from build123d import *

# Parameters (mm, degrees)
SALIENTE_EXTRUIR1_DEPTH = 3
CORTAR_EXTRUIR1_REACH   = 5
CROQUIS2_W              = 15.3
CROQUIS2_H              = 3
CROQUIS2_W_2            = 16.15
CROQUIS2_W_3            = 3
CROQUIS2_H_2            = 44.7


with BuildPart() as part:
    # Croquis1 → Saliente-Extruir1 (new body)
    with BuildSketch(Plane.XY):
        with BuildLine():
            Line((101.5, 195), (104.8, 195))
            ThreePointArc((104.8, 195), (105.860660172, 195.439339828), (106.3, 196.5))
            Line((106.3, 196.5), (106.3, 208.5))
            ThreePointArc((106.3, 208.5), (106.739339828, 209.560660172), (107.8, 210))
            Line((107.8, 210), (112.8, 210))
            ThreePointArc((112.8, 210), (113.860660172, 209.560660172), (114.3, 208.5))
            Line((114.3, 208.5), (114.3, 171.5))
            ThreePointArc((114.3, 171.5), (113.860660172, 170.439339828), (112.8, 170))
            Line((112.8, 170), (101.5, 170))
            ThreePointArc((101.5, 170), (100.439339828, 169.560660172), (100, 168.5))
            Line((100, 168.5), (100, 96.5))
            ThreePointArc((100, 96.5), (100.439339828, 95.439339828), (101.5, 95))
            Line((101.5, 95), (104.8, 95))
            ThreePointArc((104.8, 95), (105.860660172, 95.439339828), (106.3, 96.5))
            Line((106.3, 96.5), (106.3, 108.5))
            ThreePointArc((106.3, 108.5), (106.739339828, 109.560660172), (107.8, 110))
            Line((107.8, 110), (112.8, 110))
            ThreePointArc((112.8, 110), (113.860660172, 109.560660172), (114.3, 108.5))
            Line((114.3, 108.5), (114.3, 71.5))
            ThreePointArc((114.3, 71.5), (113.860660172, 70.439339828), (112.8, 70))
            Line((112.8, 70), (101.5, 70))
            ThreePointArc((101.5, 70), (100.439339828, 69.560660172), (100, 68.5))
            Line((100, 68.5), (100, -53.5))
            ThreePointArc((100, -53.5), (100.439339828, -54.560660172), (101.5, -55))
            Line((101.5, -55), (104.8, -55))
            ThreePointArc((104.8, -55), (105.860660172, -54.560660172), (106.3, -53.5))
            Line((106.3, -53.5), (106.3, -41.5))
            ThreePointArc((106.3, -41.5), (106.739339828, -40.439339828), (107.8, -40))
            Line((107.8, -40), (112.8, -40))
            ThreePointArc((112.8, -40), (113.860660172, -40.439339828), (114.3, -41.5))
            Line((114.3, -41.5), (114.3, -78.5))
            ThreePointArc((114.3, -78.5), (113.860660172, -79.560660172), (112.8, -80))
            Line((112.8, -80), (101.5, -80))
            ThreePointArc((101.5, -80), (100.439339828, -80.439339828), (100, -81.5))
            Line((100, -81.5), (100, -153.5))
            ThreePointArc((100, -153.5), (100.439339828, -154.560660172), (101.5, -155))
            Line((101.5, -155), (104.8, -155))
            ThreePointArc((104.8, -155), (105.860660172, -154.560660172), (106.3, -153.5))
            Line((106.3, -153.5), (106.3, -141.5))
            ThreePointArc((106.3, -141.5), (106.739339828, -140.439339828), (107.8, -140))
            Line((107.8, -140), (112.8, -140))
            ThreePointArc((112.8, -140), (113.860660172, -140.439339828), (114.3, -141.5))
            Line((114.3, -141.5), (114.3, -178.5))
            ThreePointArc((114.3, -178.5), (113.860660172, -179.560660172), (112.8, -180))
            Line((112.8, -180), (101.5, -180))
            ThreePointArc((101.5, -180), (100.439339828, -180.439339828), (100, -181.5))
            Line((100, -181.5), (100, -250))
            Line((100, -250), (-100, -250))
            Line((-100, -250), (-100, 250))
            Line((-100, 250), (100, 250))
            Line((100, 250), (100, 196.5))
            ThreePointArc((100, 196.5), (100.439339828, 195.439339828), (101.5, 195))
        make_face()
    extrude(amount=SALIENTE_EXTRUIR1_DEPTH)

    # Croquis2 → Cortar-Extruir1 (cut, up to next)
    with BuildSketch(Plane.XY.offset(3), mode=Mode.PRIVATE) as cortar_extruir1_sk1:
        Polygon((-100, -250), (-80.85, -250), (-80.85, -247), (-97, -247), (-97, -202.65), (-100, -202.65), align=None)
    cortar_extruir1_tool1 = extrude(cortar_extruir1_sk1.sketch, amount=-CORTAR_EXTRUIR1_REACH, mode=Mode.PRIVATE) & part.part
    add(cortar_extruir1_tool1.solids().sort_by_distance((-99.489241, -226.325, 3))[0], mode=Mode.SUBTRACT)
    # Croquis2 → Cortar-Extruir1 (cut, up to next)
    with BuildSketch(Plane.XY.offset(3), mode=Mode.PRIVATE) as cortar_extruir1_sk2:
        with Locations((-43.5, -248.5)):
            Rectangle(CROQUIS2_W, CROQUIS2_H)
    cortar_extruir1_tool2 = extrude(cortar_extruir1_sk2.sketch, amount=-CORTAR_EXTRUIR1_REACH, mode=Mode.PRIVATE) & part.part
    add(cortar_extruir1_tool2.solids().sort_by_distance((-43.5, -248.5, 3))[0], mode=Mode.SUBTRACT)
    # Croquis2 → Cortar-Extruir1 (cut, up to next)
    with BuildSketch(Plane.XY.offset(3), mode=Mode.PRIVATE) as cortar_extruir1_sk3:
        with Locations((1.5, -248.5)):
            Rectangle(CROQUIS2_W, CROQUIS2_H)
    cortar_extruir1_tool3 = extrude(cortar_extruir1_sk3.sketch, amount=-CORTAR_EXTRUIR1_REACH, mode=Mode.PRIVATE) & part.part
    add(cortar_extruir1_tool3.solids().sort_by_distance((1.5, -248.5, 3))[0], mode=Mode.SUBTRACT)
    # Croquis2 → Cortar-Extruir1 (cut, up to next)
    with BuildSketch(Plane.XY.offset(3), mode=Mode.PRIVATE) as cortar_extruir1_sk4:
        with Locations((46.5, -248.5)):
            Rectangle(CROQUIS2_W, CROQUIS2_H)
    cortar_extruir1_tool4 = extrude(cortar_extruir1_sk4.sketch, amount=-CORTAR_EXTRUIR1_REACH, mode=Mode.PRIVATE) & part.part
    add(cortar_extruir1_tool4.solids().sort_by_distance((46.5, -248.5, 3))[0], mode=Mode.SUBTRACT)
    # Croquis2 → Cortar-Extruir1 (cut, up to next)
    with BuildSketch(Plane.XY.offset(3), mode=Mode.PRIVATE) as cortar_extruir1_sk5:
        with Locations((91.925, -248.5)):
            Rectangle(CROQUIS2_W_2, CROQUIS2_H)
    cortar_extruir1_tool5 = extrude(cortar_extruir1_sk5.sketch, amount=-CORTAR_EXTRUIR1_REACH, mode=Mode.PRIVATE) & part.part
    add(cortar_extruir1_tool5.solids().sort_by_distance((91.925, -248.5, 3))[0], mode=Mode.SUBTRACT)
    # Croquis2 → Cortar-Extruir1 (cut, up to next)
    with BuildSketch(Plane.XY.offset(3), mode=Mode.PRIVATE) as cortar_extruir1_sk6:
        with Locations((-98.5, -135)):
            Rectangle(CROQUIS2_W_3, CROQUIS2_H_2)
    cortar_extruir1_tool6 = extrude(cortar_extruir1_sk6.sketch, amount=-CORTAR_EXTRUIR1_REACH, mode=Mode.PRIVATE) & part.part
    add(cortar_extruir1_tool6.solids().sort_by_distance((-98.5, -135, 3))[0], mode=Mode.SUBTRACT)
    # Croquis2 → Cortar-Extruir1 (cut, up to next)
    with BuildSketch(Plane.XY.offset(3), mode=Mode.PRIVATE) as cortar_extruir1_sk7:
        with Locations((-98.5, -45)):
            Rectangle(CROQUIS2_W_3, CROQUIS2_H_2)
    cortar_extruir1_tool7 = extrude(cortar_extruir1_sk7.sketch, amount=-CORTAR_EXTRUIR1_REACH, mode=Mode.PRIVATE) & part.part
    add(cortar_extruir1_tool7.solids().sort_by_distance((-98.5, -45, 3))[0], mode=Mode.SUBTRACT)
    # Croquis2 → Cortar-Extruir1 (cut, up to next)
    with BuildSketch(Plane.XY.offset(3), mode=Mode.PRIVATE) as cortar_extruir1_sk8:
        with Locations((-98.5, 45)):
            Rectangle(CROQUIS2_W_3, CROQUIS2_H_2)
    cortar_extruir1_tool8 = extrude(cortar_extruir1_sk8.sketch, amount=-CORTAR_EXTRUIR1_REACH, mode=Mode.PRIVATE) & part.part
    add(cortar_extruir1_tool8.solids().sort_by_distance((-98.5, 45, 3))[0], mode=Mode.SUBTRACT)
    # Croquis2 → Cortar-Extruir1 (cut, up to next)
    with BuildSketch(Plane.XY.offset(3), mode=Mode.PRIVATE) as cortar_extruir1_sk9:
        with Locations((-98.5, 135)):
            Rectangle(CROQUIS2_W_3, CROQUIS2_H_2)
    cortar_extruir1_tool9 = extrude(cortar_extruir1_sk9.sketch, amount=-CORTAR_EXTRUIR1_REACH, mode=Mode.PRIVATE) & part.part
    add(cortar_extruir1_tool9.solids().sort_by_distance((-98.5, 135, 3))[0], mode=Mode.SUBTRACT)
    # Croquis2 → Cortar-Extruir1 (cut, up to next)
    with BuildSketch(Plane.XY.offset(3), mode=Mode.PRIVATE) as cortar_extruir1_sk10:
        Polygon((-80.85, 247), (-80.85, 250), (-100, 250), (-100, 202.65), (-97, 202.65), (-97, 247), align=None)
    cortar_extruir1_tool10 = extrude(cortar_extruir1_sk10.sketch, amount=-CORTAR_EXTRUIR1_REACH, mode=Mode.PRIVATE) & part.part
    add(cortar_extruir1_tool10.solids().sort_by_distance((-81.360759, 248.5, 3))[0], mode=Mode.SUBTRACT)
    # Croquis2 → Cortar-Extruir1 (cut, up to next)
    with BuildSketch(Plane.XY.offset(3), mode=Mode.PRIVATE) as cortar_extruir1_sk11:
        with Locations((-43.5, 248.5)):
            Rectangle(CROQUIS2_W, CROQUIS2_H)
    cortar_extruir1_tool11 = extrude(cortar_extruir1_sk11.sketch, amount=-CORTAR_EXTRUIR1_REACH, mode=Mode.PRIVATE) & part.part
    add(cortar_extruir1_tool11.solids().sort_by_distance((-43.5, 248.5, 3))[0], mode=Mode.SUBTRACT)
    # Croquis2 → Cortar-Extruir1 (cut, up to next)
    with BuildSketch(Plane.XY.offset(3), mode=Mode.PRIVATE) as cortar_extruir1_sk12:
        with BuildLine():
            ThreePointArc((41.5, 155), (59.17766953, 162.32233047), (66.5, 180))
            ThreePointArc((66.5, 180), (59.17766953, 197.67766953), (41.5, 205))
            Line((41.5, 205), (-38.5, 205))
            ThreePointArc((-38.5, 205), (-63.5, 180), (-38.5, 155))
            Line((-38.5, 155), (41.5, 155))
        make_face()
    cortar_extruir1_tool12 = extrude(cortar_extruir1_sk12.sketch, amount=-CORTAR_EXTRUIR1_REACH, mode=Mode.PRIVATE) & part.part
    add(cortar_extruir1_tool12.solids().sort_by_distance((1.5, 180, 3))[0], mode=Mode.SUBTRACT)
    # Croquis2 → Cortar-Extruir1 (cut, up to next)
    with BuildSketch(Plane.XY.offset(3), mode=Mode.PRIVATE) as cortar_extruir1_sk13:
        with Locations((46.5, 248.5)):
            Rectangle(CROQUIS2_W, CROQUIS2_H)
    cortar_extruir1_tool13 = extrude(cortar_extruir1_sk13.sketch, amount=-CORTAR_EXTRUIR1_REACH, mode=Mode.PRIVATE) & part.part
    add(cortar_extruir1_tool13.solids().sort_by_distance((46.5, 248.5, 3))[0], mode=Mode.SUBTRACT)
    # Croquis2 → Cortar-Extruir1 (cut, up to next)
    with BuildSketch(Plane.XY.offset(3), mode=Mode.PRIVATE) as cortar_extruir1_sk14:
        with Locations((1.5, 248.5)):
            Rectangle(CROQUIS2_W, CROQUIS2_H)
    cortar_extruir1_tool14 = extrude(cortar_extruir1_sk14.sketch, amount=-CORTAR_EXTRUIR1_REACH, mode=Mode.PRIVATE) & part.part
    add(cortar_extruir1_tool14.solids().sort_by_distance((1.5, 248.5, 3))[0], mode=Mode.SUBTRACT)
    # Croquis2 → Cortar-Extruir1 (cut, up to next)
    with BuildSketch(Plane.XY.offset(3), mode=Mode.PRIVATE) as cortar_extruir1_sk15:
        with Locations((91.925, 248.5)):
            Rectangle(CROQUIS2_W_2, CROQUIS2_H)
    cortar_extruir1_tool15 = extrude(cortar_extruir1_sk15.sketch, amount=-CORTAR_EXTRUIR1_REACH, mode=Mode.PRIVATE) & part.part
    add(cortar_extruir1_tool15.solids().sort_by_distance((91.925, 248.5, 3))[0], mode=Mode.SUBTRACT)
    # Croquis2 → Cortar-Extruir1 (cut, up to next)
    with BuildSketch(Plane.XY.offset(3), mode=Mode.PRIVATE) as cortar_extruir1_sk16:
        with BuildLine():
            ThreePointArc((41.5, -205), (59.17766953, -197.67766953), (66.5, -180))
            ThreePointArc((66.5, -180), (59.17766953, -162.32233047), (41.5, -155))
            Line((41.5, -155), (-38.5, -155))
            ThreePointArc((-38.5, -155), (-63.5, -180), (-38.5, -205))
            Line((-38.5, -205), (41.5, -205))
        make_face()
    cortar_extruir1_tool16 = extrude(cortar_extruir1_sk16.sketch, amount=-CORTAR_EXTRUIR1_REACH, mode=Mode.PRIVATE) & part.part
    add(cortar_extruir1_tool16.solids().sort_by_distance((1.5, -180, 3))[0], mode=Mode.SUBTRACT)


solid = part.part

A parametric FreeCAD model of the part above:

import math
import FreeCAD as App
import Part
import Sketcher
Q = App.Units.Quantity


def add_polygon(sketch, points):
    """Adds a closed chain of lines whose ends are joined by coincident constraints."""
    first, n = sketch.GeometryCount, len(points)
    for a, b in zip(points, points[1:] + points[:1]):
        sketch.addGeometry(Part.LineSegment(App.Vector(*a, 0), App.Vector(*b, 0)), False)
    for i in range(n):
        sketch.addConstraint(Sketcher.Constraint("Coincident", first + i, 2, first + (i + 1) % n, 1))

doc = App.newDocument("Part")
body = doc.addObject("PartDesign::Body", "Body")

sketch1 = doc.addObject("Sketcher::SketchObject", "Sketch")
body.addObject(sketch1)
sketch1.AttachmentSupport = (doc.XY_Plane, [""])
sketch1.MapMode = "FlatFace"
sketch1.addGeometry([
    Part.LineSegment(App.Vector(104.8, 195, 0), App.Vector(101.5, 195, 0)),
    Part.ArcOfCircle(Part.Circle(App.Vector(101.5, 196.5, 0), App.Vector(0, 0, 1), 1.5), math.radians(180), math.radians(270)),
    Part.LineSegment(App.Vector(100, 196.5, 0), App.Vector(100, 250, 0)),
    Part.LineSegment(App.Vector(100, 250, 0), App.Vector(-100, 250, 0)),
    Part.LineSegment(App.Vector(-100, 250, 0), App.Vector(-100, -250, 0)),
    Part.LineSegment(App.Vector(-100, -250, 0), App.Vector(100, -250, 0)),
    Part.LineSegment(App.Vector(100, -250, 0), App.Vector(100, -181.5, 0)),
    Part.ArcOfCircle(Part.Circle(App.Vector(101.5, -181.5, 0), App.Vector(0, 0, 1), 1.5), math.radians(90), math.radians(180)),
    Part.LineSegment(App.Vector(101.5, -180, 0), App.Vector(112.8, -180, 0)),
    Part.ArcOfCircle(Part.Circle(App.Vector(112.8, -178.5, 0), App.Vector(0, 0, 1), 1.5), math.radians(-90), math.radians(0)),
    Part.LineSegment(App.Vector(114.3, -178.5, 0), App.Vector(114.3, -141.5, 0)),
    Part.ArcOfCircle(Part.Circle(App.Vector(112.8, -141.5, 0), App.Vector(0, 0, 1), 1.5), math.radians(0), math.radians(90)),
    Part.LineSegment(App.Vector(112.8, -140, 0), App.Vector(107.8, -140, 0)),
    Part.ArcOfCircle(Part.Circle(App.Vector(107.8, -141.5, 0), App.Vector(0, 0, 1), 1.5), math.radians(90), math.radians(180)),
    Part.LineSegment(App.Vector(106.3, -141.5, 0), App.Vector(106.3, -153.5, 0)),
    Part.ArcOfCircle(Part.Circle(App.Vector(104.8, -153.5, 0), App.Vector(0, 0, 1), 1.5), math.radians(-90), math.radians(0)),
    Part.LineSegment(App.Vector(104.8, -155, 0), App.Vector(101.5, -155, 0)),
    Part.ArcOfCircle(Part.Circle(App.Vector(101.5, -153.5, 0), App.Vector(0, 0, 1), 1.5), math.radians(180), math.radians(270)),
    Part.LineSegment(App.Vector(100, -153.5, 0), App.Vector(100, -81.5, 0)),
    Part.ArcOfCircle(Part.Circle(App.Vector(101.5, -81.5, 0), App.Vector(0, 0, 1), 1.5), math.radians(90), math.radians(180)),
    Part.LineSegment(App.Vector(101.5, -80, 0), App.Vector(112.8, -80, 0)),
    Part.ArcOfCircle(Part.Circle(App.Vector(112.8, -78.5, 0), App.Vector(0, 0, 1), 1.5), math.radians(-90), math.radians(0)),
    Part.LineSegment(App.Vector(114.3, -78.5, 0), App.Vector(114.3, -41.5, 0)),
    Part.ArcOfCircle(Part.Circle(App.Vector(112.8, -41.5, 0), App.Vector(0, 0, 1), 1.5), math.radians(0), math.radians(90)),
    Part.LineSegment(App.Vector(112.8, -40, 0), App.Vector(107.8, -40, 0)),
    Part.ArcOfCircle(Part.Circle(App.Vector(107.8, -41.5, 0), App.Vector(0, 0, 1), 1.5), math.radians(90), math.radians(180)),
    Part.LineSegment(App.Vector(106.3, -41.5, 0), App.Vector(106.3, -53.5, 0)),
    Part.ArcOfCircle(Part.Circle(App.Vector(104.8, -53.5, 0), App.Vector(0, 0, 1), 1.5), math.radians(-90), math.radians(0)),
    Part.LineSegment(App.Vector(104.8, -55, 0), App.Vector(101.5, -55, 0)),
    Part.ArcOfCircle(Part.Circle(App.Vector(101.5, -53.5, 0), App.Vector(0, 0, 1), 1.5), math.radians(180), math.radians(270)),
    Part.LineSegment(App.Vector(100, -53.5, 0), App.Vector(100, 68.5, 0)),
    Part.ArcOfCircle(Part.Circle(App.Vector(101.5, 68.5, 0), App.Vector(0, 0, 1), 1.5), math.radians(90), math.radians(180)),
    Part.LineSegment(App.Vector(101.5, 70, 0), App.Vector(112.8, 70, 0)),
    Part.ArcOfCircle(Part.Circle(App.Vector(112.8, 71.5, 0), App.Vector(0, 0, 1), 1.5), math.radians(-90), math.radians(0)),
    Part.LineSegment(App.Vector(114.3, 71.5, 0), App.Vector(114.3, 108.5, 0)),
    Part.ArcOfCircle(Part.Circle(App.Vector(112.8, 108.5, 0), App.Vector(0, 0, 1), 1.5), math.radians(0), math.radians(90)),
    Part.LineSegment(App.Vector(112.8, 110, 0), App.Vector(107.8, 110, 0)),
    Part.ArcOfCircle(Part.Circle(App.Vector(107.8, 108.5, 0), App.Vector(0, 0, 1), 1.5), math.radians(90), math.radians(180)),
    Part.LineSegment(App.Vector(106.3, 108.5, 0), App.Vector(106.3, 96.5, 0)),
    Part.ArcOfCircle(Part.Circle(App.Vector(104.8, 96.5, 0), App.Vector(0, 0, 1), 1.5), math.radians(-90), math.radians(0)),
    Part.LineSegment(App.Vector(104.8, 95, 0), App.Vector(101.5, 95, 0)),
    Part.ArcOfCircle(Part.Circle(App.Vector(101.5, 96.5, 0), App.Vector(0, 0, 1), 1.5), math.radians(180), math.radians(270)),
    Part.LineSegment(App.Vector(100, 96.5, 0), App.Vector(100, 168.5, 0)),
    Part.ArcOfCircle(Part.Circle(App.Vector(101.5, 168.5, 0), App.Vector(0, 0, 1), 1.5), math.radians(90), math.radians(180)),
    Part.LineSegment(App.Vector(101.5, 170, 0), App.Vector(112.8, 170, 0)),
    Part.ArcOfCircle(Part.Circle(App.Vector(112.8, 171.5, 0), App.Vector(0, 0, 1), 1.5), math.radians(-90), math.radians(0)),
    Part.LineSegment(App.Vector(114.3, 171.5, 0), App.Vector(114.3, 208.5, 0)),
    Part.ArcOfCircle(Part.Circle(App.Vector(112.8, 208.5, 0), App.Vector(0, 0, 1), 1.5), math.radians(0), math.radians(90)),
    Part.LineSegment(App.Vector(112.8, 210, 0), App.Vector(107.8, 210, 0)),
    Part.ArcOfCircle(Part.Circle(App.Vector(107.8, 208.5, 0), App.Vector(0, 0, 1), 1.5), math.radians(90), math.radians(180)),
    Part.LineSegment(App.Vector(106.3, 208.5, 0), App.Vector(106.3, 196.5, 0)),
    Part.ArcOfCircle(Part.Circle(App.Vector(104.8, 196.5, 0), App.Vector(0, 0, 1), 1.5), math.radians(-90), math.radians(0)),
], False)
sketch1.addConstraint([
    Sketcher.Constraint("Tangent", 0, 2, 1, 2),
    Sketcher.Constraint("Tangent", 1, 1, 2, 1),
    Sketcher.Constraint("Coincident", 2, 2, 3, 1),
    Sketcher.Constraint("Coincident", 3, 2, 4, 1),
    Sketcher.Constraint("Coincident", 4, 2, 5, 1),
    Sketcher.Constraint("Coincident", 5, 2, 6, 1),
    Sketcher.Constraint("Tangent", 6, 2, 7, 2),
    Sketcher.Constraint("Tangent", 7, 1, 8, 1),
    Sketcher.Constraint("Tangent", 8, 2, 9, 1),
    Sketcher.Constraint("Tangent", 9, 2, 10, 1),
    Sketcher.Constraint("Tangent", 10, 2, 11, 1),
    Sketcher.Constraint("Tangent", 11, 2, 12, 1),
    Sketcher.Constraint("Tangent", 12, 2, 13, 1),
    Sketcher.Constraint("Tangent", 13, 2, 14, 1),
    Sketcher.Constraint("Tangent", 14, 2, 15, 2),
    Sketcher.Constraint("Tangent", 15, 1, 16, 1),
    Sketcher.Constraint("Tangent", 16, 2, 17, 2),
    Sketcher.Constraint("Tangent", 17, 1, 18, 1),
    Sketcher.Constraint("Tangent", 18, 2, 19, 2),
    Sketcher.Constraint("Tangent", 19, 1, 20, 1),
    Sketcher.Constraint("Tangent", 20, 2, 21, 1),
    Sketcher.Constraint("Tangent", 21, 2, 22, 1),
    Sketcher.Constraint("Tangent", 22, 2, 23, 1),
    Sketcher.Constraint("Tangent", 23, 2, 24, 1),
    Sketcher.Constraint("Tangent", 24, 2, 25, 1),
    Sketcher.Constraint("Tangent", 25, 2, 26, 1),
    Sketcher.Constraint("Tangent", 26, 2, 27, 2),
    Sketcher.Constraint("Tangent", 27, 1, 28, 1),
    Sketcher.Constraint("Tangent", 28, 2, 29, 2),
    Sketcher.Constraint("Tangent", 29, 1, 30, 1),
    Sketcher.Constraint("Tangent", 30, 2, 31, 2),
    Sketcher.Constraint("Tangent", 31, 1, 32, 1),
    Sketcher.Constraint("Tangent", 32, 2, 33, 1),
    Sketcher.Constraint("Tangent", 33, 2, 34, 1),
    Sketcher.Constraint("Tangent", 34, 2, 35, 1),
    Sketcher.Constraint("Tangent", 35, 2, 36, 1),
    Sketcher.Constraint("Tangent", 36, 2, 37, 1),
    Sketcher.Constraint("Tangent", 37, 2, 38, 1),
    Sketcher.Constraint("Tangent", 38, 2, 39, 2),
    Sketcher.Constraint("Tangent", 39, 1, 40, 1),
    Sketcher.Constraint("Tangent", 40, 2, 41, 2),
    Sketcher.Constraint("Tangent", 41, 1, 42, 1),
    Sketcher.Constraint("Tangent", 42, 2, 43, 2),
    Sketcher.Constraint("Tangent", 43, 1, 44, 1),
    Sketcher.Constraint("Tangent", 44, 2, 45, 1),
    Sketcher.Constraint("Tangent", 45, 2, 46, 1),
    Sketcher.Constraint("Tangent", 46, 2, 47, 1),
    Sketcher.Constraint("Tangent", 47, 2, 48, 1),
    Sketcher.Constraint("Tangent", 48, 2, 49, 1),
    Sketcher.Constraint("Tangent", 49, 2, 50, 1),
    Sketcher.Constraint("Tangent", 50, 2, 51, 2),
    Sketcher.Constraint("Tangent", 51, 1, 0, 1),
    Sketcher.Constraint("Horizontal", 0),
    Sketcher.Constraint("Vertical", 2),
    Sketcher.Constraint("Horizontal", 3),
    Sketcher.Constraint("Vertical", 4),
    Sketcher.Constraint("Horizontal", 5),
    Sketcher.Constraint("Vertical", 6),
    Sketcher.Constraint("Horizontal", 8),
    Sketcher.Constraint("Vertical", 10),
    Sketcher.Constraint("Horizontal", 12),
    Sketcher.Constraint("Vertical", 14),
    Sketcher.Constraint("Horizontal", 16),
    Sketcher.Constraint("Vertical", 18),
    Sketcher.Constraint("Horizontal", 20),
    Sketcher.Constraint("Vertical", 22),
    Sketcher.Constraint("Horizontal", 24),
    Sketcher.Constraint("Vertical", 26),
    Sketcher.Constraint("Horizontal", 28),
    Sketcher.Constraint("Vertical", 30),
    Sketcher.Constraint("Horizontal", 32),
    Sketcher.Constraint("Vertical", 34),
    Sketcher.Constraint("Horizontal", 36),
    Sketcher.Constraint("Vertical", 38),
    Sketcher.Constraint("Horizontal", 40),
    Sketcher.Constraint("Vertical", 42),
    Sketcher.Constraint("Horizontal", 44),
    Sketcher.Constraint("Vertical", 46),
    Sketcher.Constraint("Horizontal", 48),
    Sketcher.Constraint("Vertical", 50),
    Sketcher.Constraint("Equal", 1, 7),
    Sketcher.Constraint("Equal", 7, 9),
    Sketcher.Constraint("Equal", 9, 11),
    Sketcher.Constraint("Equal", 11, 13),
    Sketcher.Constraint("Equal", 13, 15),
    Sketcher.Constraint("Equal", 15, 17),
    Sketcher.Constraint("Equal", 17, 19),
    Sketcher.Constraint("Equal", 19, 21),
    Sketcher.Constraint("Equal", 21, 23),
    Sketcher.Constraint("Equal", 23, 25),
    Sketcher.Constraint("Equal", 25, 27),
    Sketcher.Constraint("Equal", 27, 29),
    Sketcher.Constraint("Equal", 29, 31),
    Sketcher.Constraint("Equal", 31, 33),
    Sketcher.Constraint("Equal", 33, 35),
    Sketcher.Constraint("Equal", 35, 37),
    Sketcher.Constraint("Equal", 37, 39),
    Sketcher.Constraint("Equal", 39, 41),
    Sketcher.Constraint("Equal", 41, 43),
    Sketcher.Constraint("Equal", 43, 45),
    Sketcher.Constraint("Equal", 45, 47),
    Sketcher.Constraint("Equal", 47, 49),
    Sketcher.Constraint("Equal", 49, 51),
    Sketcher.Constraint("Symmetric", 2, 2, 4, 2, -1, 1),
    Sketcher.Constraint("Vertical", 1, 3, 7, 3),
    Sketcher.Constraint("Vertical", 7, 3, 17, 3),
    Sketcher.Constraint("Vertical", 11, 3, 21, 3),
    Sketcher.Constraint("Vertical", 13, 3, 25, 3),
    Sketcher.Constraint("Vertical", 19, 3, 29, 3),
    Sketcher.Constraint("Vertical", 23, 3, 33, 3),
    Sketcher.Constraint("Vertical", 25, 3, 37, 3),
    Sketcher.Constraint("Vertical", 31, 3, 41, 3),
    Sketcher.Constraint("Vertical", 35, 3, 45, 3),
    Sketcher.Constraint("Vertical", 37, 3, 49, 3),
    Sketcher.Constraint("Equal", 10, 22),
    Sketcher.Constraint("Equal", 14, 26),
    Sketcher.Constraint("Equal", 22, 34),
    Sketcher.Constraint("Equal", 26, 38),
    Sketcher.Constraint("Equal", 18, 42),
    Sketcher.Constraint("Equal", 34, 46),
    Sketcher.Constraint("Equal", 38, 50),
    Sketcher.Constraint("Radius", 1, Q("1.5 mm")),
    Sketcher.Constraint("DistanceX", 3, 2, 3, 1, Q("200 mm")),
    Sketcher.Constraint("DistanceX", 12, 2, 12, 1, Q("5 mm")),
    Sketcher.Constraint("DistanceY", 4, 2, 4, 1, Q("500 mm")),
    Sketcher.Constraint("DistanceY", 10, 1, 10, 2, Q("37 mm")),
    Sketcher.Constraint("DistanceY", 14, 2, 14, 1, Q("12 mm")),
    Sketcher.Constraint("DistanceY", 18, 1, 18, 2, Q("72 mm")),
    Sketcher.Constraint("DistanceY", 30, 1, 30, 2, Q("122 mm")),
    Sketcher.Constraint("DistanceX", 0, 2, 0, 1, Q("3.3 mm")),
    Sketcher.Constraint("DistanceY", 2, 1, 2, 2, Q("53.5 mm")),
])
pad1 = doc.addObject("PartDesign::Pad", "Pad")
body.addObject(pad1)
pad1.Profile = sketch1
pad1.Length = 3

sketch2 = doc.addObject("Sketcher::SketchObject", "Sketch001")
body.addObject(sketch2)
sketch2.AttachmentSupport = (doc.XY_Plane, [""])
sketch2.MapMode = "FlatFace"
sketch2.AttachmentOffset = App.Placement(App.Vector(0, 0, 3), App.Rotation())
add_polygon(sketch2, [(-100, -250), (-80.8, -250), (-80.8, -247), (-97, -247), (-97, -202.7), (-100, -202.7)])
sketch2.addConstraint([
    Sketcher.Constraint("Horizontal", 0),
    Sketcher.Constraint("Vertical", 1),
    Sketcher.Constraint("Horizontal", 2),
    Sketcher.Constraint("Vertical", 3),
    Sketcher.Constraint("Horizontal", 4),
    Sketcher.Constraint("Vertical", 5),
    Sketcher.Constraint("Equal", 4, 1),
    Sketcher.Constraint("DistanceX", 4, 2, 4, 1, Q("3 mm")),
    Sketcher.Constraint("DistanceY", 0, 2, -1, 1, Q("250 mm")),
    Sketcher.Constraint("DistanceX", 2, 2, -1, 1, Q("97 mm")),
    Sketcher.Constraint("DistanceX", 0, 1, 0, 2, Q("19.15 mm")),
    Sketcher.Constraint("DistanceY", 3, 1, 3, 2, Q("44.35 mm")),
])
pocket1 = doc.addObject("PartDesign::Pocket", "Pocket")
body.addObject(pocket1)
pocket1.Profile = sketch2
pocket1.Type = "UpToFirst"

sketch3 = doc.addObject("Sketcher::SketchObject", "Sketch002")
body.addObject(sketch3)
sketch3.AttachmentSupport = (doc.XY_Plane, [""])
sketch3.MapMode = "FlatFace"
sketch3.AttachmentOffset = App.Placement(App.Vector(0, 0, 3), App.Rotation())
add_polygon(sketch3, [(-51.1, -247), (-51.1, -250), (-35.9, -250), (-35.9, -247)])
sketch3.addConstraint([
    Sketcher.Constraint("Vertical", 0),
    Sketcher.Constraint("Horizontal", 1),
    Sketcher.Constraint("Vertical", 2),
    Sketcher.Constraint("Horizontal", 3),
    Sketcher.Constraint("DistanceY", 0, 2, 0, 1, Q("3 mm")),
    Sketcher.Constraint("DistanceX", 1, 1, 1, 2, Q("15.3 mm")),
    Sketcher.Constraint("DistanceY", 0, 2, -1, 1, Q("250 mm")),
    Sketcher.Constraint("DistanceX", 0, 2, -1, 1, Q("51.15 mm")),
])
pocket2 = doc.addObject("PartDesign::Pocket", "Pocket001")
body.addObject(pocket2)
pocket2.Profile = sketch3
pocket2.Type = "UpToFirst"

sketch4 = doc.addObject("Sketcher::SketchObject", "Sketch003")
body.addObject(sketch4)
sketch4.AttachmentSupport = (doc.XY_Plane, [""])
sketch4.MapMode = "FlatFace"
sketch4.AttachmentOffset = App.Placement(App.Vector(0, 0, 3), App.Rotation())
add_polygon(sketch4, [(-6.2, -247), (-6.2, -250), (9.2, -250), (9.2, -247)])
sketch4.addConstraint([
    Sketcher.Constraint("Vertical", 0),
    Sketcher.Constraint("Horizontal", 1),
    Sketcher.Constraint("Vertical", 2),
    Sketcher.Constraint("Horizontal", 3),
    Sketcher.Constraint("DistanceY", 0, 2, 0, 1, Q("3 mm")),
    Sketcher.Constraint("DistanceX", 1, 1, 1, 2, Q("15.3 mm")),
    Sketcher.Constraint("DistanceY", 0, 2, -1, 1, Q("250 mm")),
    Sketcher.Constraint("DistanceX", 0, 2, -1, 1, Q("6.15 mm")),
])
pocket3 = doc.addObject("PartDesign::Pocket", "Pocket002")
body.addObject(pocket3)
pocket3.Profile = sketch4
pocket3.Type = "UpToFirst"

sketch5 = doc.addObject("Sketcher::SketchObject", "Sketch004")
body.addObject(sketch5)
sketch5.AttachmentSupport = (doc.XY_Plane, [""])
sketch5.MapMode = "FlatFace"
sketch5.AttachmentOffset = App.Placement(App.Vector(0, 0, 3), App.Rotation())
add_polygon(sketch5, [(38.9, -247), (38.9, -250), (54.1, -250), (54.1, -247)])
sketch5.addConstraint([
    Sketcher.Constraint("Vertical", 0),
    Sketcher.Constraint("Horizontal", 1),
    Sketcher.Constraint("Vertical", 2),
    Sketcher.Constraint("Horizontal", 3),
    Sketcher.Constraint("DistanceY", 0, 2, 0, 1, Q("3 mm")),
    Sketcher.Constraint("DistanceX", 1, 1, 1, 2, Q("15.3 mm")),
    Sketcher.Constraint("DistanceY", 0, 2, -1, 1, Q("250 mm")),
    Sketcher.Constraint("DistanceX", -1, 1, 0, 2, Q("38.85 mm")),
])
pocket4 = doc.addObject("PartDesign::Pocket", "Pocket003")
body.addObject(pocket4)
pocket4.Profile = sketch5
pocket4.Type = "UpToFirst"

sketch6 = doc.addObject("Sketcher::SketchObject", "Sketch005")
body.addObject(sketch6)
sketch6.AttachmentSupport = (doc.XY_Plane, [""])
sketch6.MapMode = "FlatFace"
sketch6.AttachmentOffset = App.Placement(App.Vector(0, 0, 3), App.Rotation())
add_polygon(sketch6, [(83.8, -247), (83.8, -250), (100, -250), (100, -247)])
sketch6.addConstraint([
    Sketcher.Constraint("Vertical", 0),
    Sketcher.Constraint("Horizontal", 1),
    Sketcher.Constraint("Vertical", 2),
    Sketcher.Constraint("Horizontal", 3),
    Sketcher.Constraint("DistanceY", 0, 2, 0, 1, Q("3 mm")),
    Sketcher.Constraint("DistanceY", 0, 2, -1, 1, Q("250 mm")),
    Sketcher.Constraint("DistanceX", -1, 1, 1, 2, Q("100 mm")),
    Sketcher.Constraint("DistanceX", 1, 1, 1, 2, Q("16.15 mm")),
])
pocket5 = doc.addObject("PartDesign::Pocket", "Pocket004")
body.addObject(pocket5)
pocket5.Profile = sketch6
pocket5.Type = "UpToFirst"

sketch7 = doc.addObject("Sketcher::SketchObject", "Sketch006")
body.addObject(sketch7)
sketch7.AttachmentSupport = (doc.XY_Plane, [""])
sketch7.MapMode = "FlatFace"
sketch7.AttachmentOffset = App.Placement(App.Vector(0, 0, 3), App.Rotation())
add_polygon(sketch7, [(-100, -112.7), (-100, -157.3), (-97, -157.3), (-97, -112.7)])
sketch7.addConstraint([
    Sketcher.Constraint("Vertical", 0),
    Sketcher.Constraint("Horizontal", 1),
    Sketcher.Constraint("Vertical", 2),
    Sketcher.Constraint("Horizontal", 3),
    Sketcher.Constraint("DistanceX", 1, 1, 1, 2, Q("3 mm")),
    Sketcher.Constraint("DistanceY", 0, 2, 0, 1, Q("44.7 mm")),
    Sketcher.Constraint("DistanceX", 0, 2, -1, 1, Q("100 mm")),
    Sketcher.Constraint("DistanceY", 0, 2, -1, 1, Q("157.35 mm")),
])
pocket6 = doc.addObject("PartDesign::Pocket", "Pocket005")
body.addObject(pocket6)
pocket6.Profile = sketch7
pocket6.Type = "UpToFirst"

sketch8 = doc.addObject("Sketcher::SketchObject", "Sketch007")
body.addObject(sketch8)
sketch8.AttachmentSupport = (doc.XY_Plane, [""])
sketch8.MapMode = "FlatFace"
sketch8.AttachmentOffset = App.Placement(App.Vector(0, 0, 3), App.Rotation())
add_polygon(sketch8, [(-100, -22.6), (-100, -67.3), (-97, -67.3), (-97, -22.6)])
sketch8.addConstraint([
    Sketcher.Constraint("Vertical", 0),
    Sketcher.Constraint("Horizontal", 1),
    Sketcher.Constraint("Vertical", 2),
    Sketcher.Constraint("Horizontal", 3),
    Sketcher.Constraint("DistanceX", 1, 1, 1, 2, Q("3 mm")),
    Sketcher.Constraint("DistanceY", 0, 2, 0, 1, Q("44.7 mm")),
    Sketcher.Constraint("DistanceX", 0, 2, -1, 1, Q("100 mm")),
    Sketcher.Constraint("DistanceY", 0, 2, -1, 1, Q("67.35 mm")),
])
pocket7 = doc.addObject("PartDesign::Pocket", "Pocket006")
body.addObject(pocket7)
pocket7.Profile = sketch8
pocket7.Type = "UpToFirst"

sketch9 = doc.addObject("Sketcher::SketchObject", "Sketch008")
body.addObject(sketch9)
sketch9.AttachmentSupport = (doc.XY_Plane, [""])
sketch9.MapMode = "FlatFace"
sketch9.AttachmentOffset = App.Placement(App.Vector(0, 0, 3), App.Rotation())
add_polygon(sketch9, [(-100, 67.3), (-100, 22.6), (-97, 22.6), (-97, 67.3)])
sketch9.addConstraint([
    Sketcher.Constraint("Vertical", 0),
    Sketcher.Constraint("Horizontal", 1),
    Sketcher.Constraint("Vertical", 2),
    Sketcher.Constraint("Horizontal", 3),
    Sketcher.Constraint("DistanceX", 1, 1, 1, 2, Q("3 mm")),
    Sketcher.Constraint("DistanceY", 0, 2, 0, 1, Q("44.7 mm")),
    Sketcher.Constraint("DistanceX", 0, 2, -1, 1, Q("100 mm")),
    Sketcher.Constraint("DistanceY", -1, 1, 0, 2, Q("22.65 mm")),
])
pocket8 = doc.addObject("PartDesign::Pocket", "Pocket007")
body.addObject(pocket8)
pocket8.Profile = sketch9
pocket8.Type = "UpToFirst"

sketch10 = doc.addObject("Sketcher::SketchObject", "Sketch009")
body.addObject(sketch10)
sketch10.AttachmentSupport = (doc.XY_Plane, [""])
sketch10.MapMode = "FlatFace"
sketch10.AttachmentOffset = App.Placement(App.Vector(0, 0, 3), App.Rotation())
add_polygon(sketch10, [(-100, 157.3), (-100, 112.7), (-97, 112.7), (-97, 157.3)])
sketch10.addConstraint([
    Sketcher.Constraint("Vertical", 0),
    Sketcher.Constraint("Horizontal", 1),
    Sketcher.Constraint("Vertical", 2),
    Sketcher.Constraint("Horizontal", 3),
    Sketcher.Constraint("DistanceX", 1, 1, 1, 2, Q("3 mm")),
    Sketcher.Constraint("DistanceY", 0, 2, 0, 1, Q("44.7 mm")),
    Sketcher.Constraint("DistanceX", 0, 2, -1, 1, Q("100 mm")),
    Sketcher.Constraint("DistanceY", -1, 1, 0, 2, Q("112.65 mm")),
])
pocket9 = doc.addObject("PartDesign::Pocket", "Pocket008")
body.addObject(pocket9)
pocket9.Profile = sketch10
pocket9.Type = "UpToFirst"

sketch11 = doc.addObject("Sketcher::SketchObject", "Sketch010")
body.addObject(sketch11)
sketch11.AttachmentSupport = (doc.XY_Plane, [""])
sketch11.MapMode = "FlatFace"
sketch11.AttachmentOffset = App.Placement(App.Vector(0, 0, 3), App.Rotation())
add_polygon(sketch11, [(-80.8, 247), (-80.8, 250), (-100, 250), (-100, 202.7), (-97, 202.7), (-97, 247)])
sketch11.addConstraint([
    Sketcher.Constraint("Vertical", 0),
    Sketcher.Constraint("Horizontal", 1),
    Sketcher.Constraint("Vertical", 2),
    Sketcher.Constraint("Horizontal", 3),
    Sketcher.Constraint("Vertical", 4),
    Sketcher.Constraint("Horizontal", 5),
    Sketcher.Constraint("Equal", 3, 0),
    Sketcher.Constraint("DistanceX", 3, 1, 3, 2, Q("3 mm")),
    Sketcher.Constraint("DistanceY", -1, 1, 0, 2, Q("250 mm")),
    Sketcher.Constraint("DistanceX", 1, 2, -1, 1, Q("100 mm")),
    Sketcher.Constraint("DistanceX", 1, 2, 1, 1, Q("19.15 mm")),
    Sketcher.Constraint("DistanceY", 2, 2, 2, 1, Q("47.35 mm")),
])
pocket10 = doc.addObject("PartDesign::Pocket", "Pocket009")
body.addObject(pocket10)
pocket10.Profile = sketch11
pocket10.Type = "UpToFirst"

sketch12 = doc.addObject("Sketcher::SketchObject", "Sketch011")
body.addObject(sketch12)
sketch12.AttachmentSupport = (doc.XY_Plane, [""])
sketch12.MapMode = "FlatFace"
sketch12.AttachmentOffset = App.Placement(App.Vector(0, 0, 3), App.Rotation())
add_polygon(sketch12, [(-51.1, 250), (-51.1, 247), (-35.9, 247), (-35.9, 250)])
sketch12.addConstraint([
    Sketcher.Constraint("Vertical", 0),
    Sketcher.Constraint("Horizontal", 1),
    Sketcher.Constraint("Vertical", 2),
    Sketcher.Constraint("Horizontal", 3),
    Sketcher.Constraint("DistanceY", 0, 2, 0, 1, Q("3 mm")),
    Sketcher.Constraint("DistanceX", 1, 1, 1, 2, Q("15.3 mm")),
    Sketcher.Constraint("DistanceY", -1, 1, 0, 2, Q("247 mm")),
    Sketcher.Constraint("DistanceX", 0, 2, -1, 1, Q("51.15 mm")),
])
pocket11 = doc.addObject("PartDesign::Pocket", "Pocket010")
body.addObject(pocket11)
pocket11.Profile = sketch12
pocket11.Type = "UpToFirst"

sketch13 = doc.addObject("Sketcher::SketchObject", "Sketch012")
body.addObject(sketch13)
sketch13.AttachmentSupport = (doc.XY_Plane, [""])
sketch13.MapMode = "FlatFace"
sketch13.AttachmentOffset = App.Placement(App.Vector(0, 0, 3), App.Rotation())
sketch13.addGeometry([
    Part.ArcOfCircle(Part.Circle(App.Vector(42, 180, 0), App.Vector(0, 0, 1), 25), math.radians(-90), math.radians(0)),
    Part.ArcOfCircle(Part.Circle(App.Vector(42, 180, 0), App.Vector(0, 0, 1), 25), math.radians(0), math.radians(90)),
    Part.LineSegment(App.Vector(42, 205, 0), App.Vector(-38, 205, 0)),
    Part.ArcOfCircle(Part.Circle(App.Vector(-38, 180, 0), App.Vector(0, 0, 1), 25), math.radians(90), math.radians(270)),
    Part.LineSegment(App.Vector(-38, 155, 0), App.Vector(42, 155, 0)),
], False)
sketch13.addConstraint([
    Sketcher.Constraint("Tangent", 0, 2, 1, 1),
    Sketcher.Constraint("Tangent", 1, 2, 2, 1),
    Sketcher.Constraint("Tangent", 2, 2, 3, 1),
    Sketcher.Constraint("Tangent", 3, 2, 4, 1),
    Sketcher.Constraint("Tangent", 4, 2, 0, 1),
    Sketcher.Constraint("Horizontal", 2),
    Sketcher.Constraint("Horizontal", 4),
    Sketcher.Constraint("Equal", 0, 1),
    Sketcher.Constraint("Horizontal", 3, 3, 0, 2),
    Sketcher.Constraint("Radius", 0, Q("25 mm")),
    Sketcher.Constraint("DistanceX", 2, 2, 2, 1, Q("80 mm")),
    Sketcher.Constraint("DistanceY", -1, 1, 0, 3, Q("180 mm")),
    Sketcher.Constraint("DistanceX", -1, 1, 0, 3, Q("41.5 mm")),
])
pocket12 = doc.addObject("PartDesign::Pocket", "Pocket011")
body.addObject(pocket12)
pocket12.Profile = sketch13
pocket12.Type = "UpToFirst"

sketch14 = doc.addObject("Sketcher::SketchObject", "Sketch013")
body.addObject(sketch14)
sketch14.AttachmentSupport = (doc.XY_Plane, [""])
sketch14.MapMode = "FlatFace"
sketch14.AttachmentOffset = App.Placement(App.Vector(0, 0, 3), App.Rotation())
add_polygon(sketch14, [(38.9, 250), (38.9, 247), (54.1, 247), (54.1, 250)])
sketch14.addConstraint([
    Sketcher.Constraint("Vertical", 0),
    Sketcher.Constraint("Horizontal", 1),
    Sketcher.Constraint("Vertical", 2),
    Sketcher.Constraint("Horizontal", 3),
    Sketcher.Constraint("DistanceY", 0, 2, 0, 1, Q("3 mm")),
    Sketcher.Constraint("DistanceX", 1, 1, 1, 2, Q("15.3 mm")),
    Sketcher.Constraint("DistanceY", -1, 1, 0, 2, Q("247 mm")),
    Sketcher.Constraint("DistanceX", -1, 1, 0, 2, Q("38.85 mm")),
])
pocket13 = doc.addObject("PartDesign::Pocket", "Pocket012")
body.addObject(pocket13)
pocket13.Profile = sketch14
pocket13.Type = "UpToFirst"

sketch15 = doc.addObject("Sketcher::SketchObject", "Sketch014")
body.addObject(sketch15)
sketch15.AttachmentSupport = (doc.XY_Plane, [""])
sketch15.MapMode = "FlatFace"
sketch15.AttachmentOffset = App.Placement(App.Vector(0, 0, 3), App.Rotation())
add_polygon(sketch15, [(-6.2, 250), (-6.2, 247), (9.2, 247), (9.2, 250)])
sketch15.addConstraint([
    Sketcher.Constraint("Vertical", 0),
    Sketcher.Constraint("Horizontal", 1),
    Sketcher.Constraint("Vertical", 2),
    Sketcher.Constraint("Horizontal", 3),
    Sketcher.Constraint("DistanceY", 0, 2, 0, 1, Q("3 mm")),
    Sketcher.Constraint("DistanceX", 1, 1, 1, 2, Q("15.3 mm")),
    Sketcher.Constraint("DistanceY", -1, 1, 0, 2, Q("247 mm")),
    Sketcher.Constraint("DistanceX", 0, 2, -1, 1, Q("6.15 mm")),
])
pocket14 = doc.addObject("PartDesign::Pocket", "Pocket013")
body.addObject(pocket14)
pocket14.Profile = sketch15
pocket14.Type = "UpToFirst"

sketch16 = doc.addObject("Sketcher::SketchObject", "Sketch015")
body.addObject(sketch16)
sketch16.AttachmentSupport = (doc.XY_Plane, [""])
sketch16.MapMode = "FlatFace"
sketch16.AttachmentOffset = App.Placement(App.Vector(0, 0, 3), App.Rotation())
add_polygon(sketch16, [(83.8, 250), (83.8, 247), (100, 247), (100, 250)])
sketch16.addConstraint([
    Sketcher.Constraint("Vertical", 0),
    Sketcher.Constraint("Horizontal", 1),
    Sketcher.Constraint("Vertical", 2),
    Sketcher.Constraint("Horizontal", 3),
    Sketcher.Constraint("DistanceY", 0, 2, 0, 1, Q("3 mm")),
    Sketcher.Constraint("DistanceY", -1, 1, 0, 2, Q("247 mm")),
    Sketcher.Constraint("DistanceX", -1, 1, 1, 2, Q("100 mm")),
    Sketcher.Constraint("DistanceX", 1, 1, 1, 2, Q("16.15 mm")),
])
pocket15 = doc.addObject("PartDesign::Pocket", "Pocket014")
body.addObject(pocket15)
pocket15.Profile = sketch16
pocket15.Type = "UpToFirst"

sketch17 = doc.addObject("Sketcher::SketchObject", "Sketch016")
body.addObject(sketch17)
sketch17.AttachmentSupport = (doc.XY_Plane, [""])
sketch17.MapMode = "FlatFace"
sketch17.AttachmentOffset = App.Placement(App.Vector(0, 0, 3), App.Rotation())
sketch17.addGeometry([
    Part.ArcOfCircle(Part.Circle(App.Vector(42, -180, 0), App.Vector(0, 0, 1), 25), math.radians(-90), math.radians(0)),
    Part.ArcOfCircle(Part.Circle(App.Vector(42, -180, 0), App.Vector(0, 0, 1), 25), math.radians(0), math.radians(90)),
    Part.LineSegment(App.Vector(42, -155, 0), App.Vector(-38, -155, 0)),
    Part.ArcOfCircle(Part.Circle(App.Vector(-38, -180, 0), App.Vector(0, 0, 1), 25), math.radians(90), math.radians(270)),
    Part.LineSegment(App.Vector(-38, -205, 0), App.Vector(42, -205, 0)),
], False)
sketch17.addConstraint([
    Sketcher.Constraint("Tangent", 0, 2, 1, 1),
    Sketcher.Constraint("Tangent", 1, 2, 2, 1),
    Sketcher.Constraint("Tangent", 2, 2, 3, 1),
    Sketcher.Constraint("Tangent", 3, 2, 4, 1),
    Sketcher.Constraint("Tangent", 4, 2, 0, 1),
    Sketcher.Constraint("Horizontal", 2),
    Sketcher.Constraint("Horizontal", 4),
    Sketcher.Constraint("Equal", 0, 1),
    Sketcher.Constraint("Horizontal", 3, 3, 0, 2),
    Sketcher.Constraint("Radius", 0, Q("25 mm")),
    Sketcher.Constraint("DistanceX", 2, 2, 2, 1, Q("80 mm")),
    Sketcher.Constraint("DistanceY", 0, 3, -1, 1, Q("180 mm")),
    Sketcher.Constraint("DistanceX", -1, 1, 0, 3, Q("41.5 mm")),
])
pocket16 = doc.addObject("PartDesign::Pocket", "Pocket015")
body.addObject(pocket16)
pocket16.Profile = sketch17
pocket16.Type = "UpToFirst"

doc.recompute()
